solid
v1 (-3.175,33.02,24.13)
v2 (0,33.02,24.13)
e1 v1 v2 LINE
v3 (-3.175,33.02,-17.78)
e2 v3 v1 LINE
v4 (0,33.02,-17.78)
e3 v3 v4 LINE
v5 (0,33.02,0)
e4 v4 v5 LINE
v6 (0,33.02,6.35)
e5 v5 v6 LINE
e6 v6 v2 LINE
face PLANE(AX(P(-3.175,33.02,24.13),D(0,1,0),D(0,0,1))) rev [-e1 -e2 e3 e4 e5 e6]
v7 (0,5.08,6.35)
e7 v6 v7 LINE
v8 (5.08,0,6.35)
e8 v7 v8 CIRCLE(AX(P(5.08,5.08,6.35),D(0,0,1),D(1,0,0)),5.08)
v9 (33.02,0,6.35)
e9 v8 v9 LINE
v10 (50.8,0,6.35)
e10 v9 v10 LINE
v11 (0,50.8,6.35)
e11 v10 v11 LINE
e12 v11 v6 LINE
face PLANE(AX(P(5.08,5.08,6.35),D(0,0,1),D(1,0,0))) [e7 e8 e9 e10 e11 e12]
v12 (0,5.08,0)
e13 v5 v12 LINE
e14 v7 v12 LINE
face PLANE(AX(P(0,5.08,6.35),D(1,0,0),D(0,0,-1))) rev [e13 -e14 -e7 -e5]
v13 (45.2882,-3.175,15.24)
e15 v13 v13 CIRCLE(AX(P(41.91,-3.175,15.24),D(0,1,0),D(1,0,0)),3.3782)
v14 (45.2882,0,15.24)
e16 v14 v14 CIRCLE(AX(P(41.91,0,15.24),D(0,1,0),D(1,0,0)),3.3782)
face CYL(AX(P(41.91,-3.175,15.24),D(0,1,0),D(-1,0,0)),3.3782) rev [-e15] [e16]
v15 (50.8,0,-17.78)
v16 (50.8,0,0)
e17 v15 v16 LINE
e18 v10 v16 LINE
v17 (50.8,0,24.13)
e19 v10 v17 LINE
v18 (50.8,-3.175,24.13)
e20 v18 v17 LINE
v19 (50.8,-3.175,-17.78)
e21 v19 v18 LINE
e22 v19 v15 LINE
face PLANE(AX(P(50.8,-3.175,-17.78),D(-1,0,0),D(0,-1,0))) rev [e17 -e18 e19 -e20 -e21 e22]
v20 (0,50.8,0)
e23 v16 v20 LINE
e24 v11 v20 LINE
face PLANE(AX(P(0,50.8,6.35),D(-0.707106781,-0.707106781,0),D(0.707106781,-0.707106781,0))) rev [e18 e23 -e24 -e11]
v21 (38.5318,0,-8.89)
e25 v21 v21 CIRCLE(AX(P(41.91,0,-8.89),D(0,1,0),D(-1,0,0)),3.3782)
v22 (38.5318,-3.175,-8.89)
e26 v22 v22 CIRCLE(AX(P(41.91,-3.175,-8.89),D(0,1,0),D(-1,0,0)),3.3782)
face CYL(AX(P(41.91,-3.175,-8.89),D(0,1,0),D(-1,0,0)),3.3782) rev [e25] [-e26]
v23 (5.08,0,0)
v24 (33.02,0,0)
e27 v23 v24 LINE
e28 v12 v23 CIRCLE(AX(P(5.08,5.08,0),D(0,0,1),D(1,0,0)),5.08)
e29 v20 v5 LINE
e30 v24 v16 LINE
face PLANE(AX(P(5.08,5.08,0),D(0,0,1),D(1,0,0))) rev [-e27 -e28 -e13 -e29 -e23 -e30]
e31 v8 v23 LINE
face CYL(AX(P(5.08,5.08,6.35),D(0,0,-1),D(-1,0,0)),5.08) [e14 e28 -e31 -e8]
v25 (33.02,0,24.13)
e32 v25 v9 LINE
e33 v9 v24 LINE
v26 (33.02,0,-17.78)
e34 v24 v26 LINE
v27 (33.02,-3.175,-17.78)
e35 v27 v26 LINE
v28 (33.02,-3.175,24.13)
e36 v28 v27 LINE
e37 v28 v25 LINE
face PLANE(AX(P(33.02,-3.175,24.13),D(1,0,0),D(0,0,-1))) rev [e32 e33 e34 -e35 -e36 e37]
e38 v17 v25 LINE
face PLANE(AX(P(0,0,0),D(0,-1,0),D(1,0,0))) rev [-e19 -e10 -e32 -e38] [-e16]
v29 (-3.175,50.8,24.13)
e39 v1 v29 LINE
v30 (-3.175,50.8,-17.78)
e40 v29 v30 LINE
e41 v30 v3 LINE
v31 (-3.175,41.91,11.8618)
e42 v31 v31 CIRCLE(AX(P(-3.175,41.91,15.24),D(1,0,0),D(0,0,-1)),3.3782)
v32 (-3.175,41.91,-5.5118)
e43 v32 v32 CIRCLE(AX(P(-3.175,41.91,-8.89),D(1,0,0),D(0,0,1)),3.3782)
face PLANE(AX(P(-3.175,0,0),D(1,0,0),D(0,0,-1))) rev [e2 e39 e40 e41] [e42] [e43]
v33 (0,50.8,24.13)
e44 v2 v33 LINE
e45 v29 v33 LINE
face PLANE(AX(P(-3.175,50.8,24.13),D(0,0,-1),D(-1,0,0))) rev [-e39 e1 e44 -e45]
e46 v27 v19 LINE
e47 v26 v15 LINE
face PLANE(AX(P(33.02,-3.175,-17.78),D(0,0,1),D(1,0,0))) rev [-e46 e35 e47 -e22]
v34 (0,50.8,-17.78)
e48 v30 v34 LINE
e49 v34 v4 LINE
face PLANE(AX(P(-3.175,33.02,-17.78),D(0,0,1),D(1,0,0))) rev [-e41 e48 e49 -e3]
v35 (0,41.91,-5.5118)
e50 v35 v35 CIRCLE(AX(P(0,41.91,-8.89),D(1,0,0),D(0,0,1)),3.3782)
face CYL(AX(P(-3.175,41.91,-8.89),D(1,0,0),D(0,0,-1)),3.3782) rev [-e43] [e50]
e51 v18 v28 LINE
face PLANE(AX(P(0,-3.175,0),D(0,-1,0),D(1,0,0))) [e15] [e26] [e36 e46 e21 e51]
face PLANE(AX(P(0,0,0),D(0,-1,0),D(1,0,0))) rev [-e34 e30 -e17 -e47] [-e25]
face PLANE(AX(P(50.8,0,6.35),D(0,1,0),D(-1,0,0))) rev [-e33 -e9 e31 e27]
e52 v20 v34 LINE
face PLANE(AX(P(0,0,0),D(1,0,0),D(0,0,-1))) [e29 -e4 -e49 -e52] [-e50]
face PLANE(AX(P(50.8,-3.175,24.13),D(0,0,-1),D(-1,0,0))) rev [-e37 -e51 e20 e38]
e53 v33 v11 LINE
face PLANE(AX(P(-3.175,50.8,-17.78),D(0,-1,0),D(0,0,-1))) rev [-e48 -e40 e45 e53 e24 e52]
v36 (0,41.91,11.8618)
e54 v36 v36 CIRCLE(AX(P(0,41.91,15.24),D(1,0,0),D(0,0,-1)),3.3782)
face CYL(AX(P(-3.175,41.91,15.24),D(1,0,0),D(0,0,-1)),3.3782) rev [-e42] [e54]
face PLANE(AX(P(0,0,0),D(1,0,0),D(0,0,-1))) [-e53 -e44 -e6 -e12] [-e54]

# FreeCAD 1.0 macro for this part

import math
import FreeCAD as App
import Part
import Sketcher
from FreeCAD import Vector
Q = App.Units.Quantity


def add_polygon(sketch, points):
    """Adds a closed chain of lines whose ends are joined by coincident constraints."""
    first, n = sketch.GeometryCount, len(points)
    for a, b in zip(points, points[1:] + points[:1]):
        sketch.addGeometry(Part.LineSegment(App.Vector(*a, 0), App.Vector(*b, 0)), False)
    for i in range(n):
        sketch.addConstraint(Sketcher.Constraint("Coincident", first + i, 2, first + (i + 1) % n, 1))

doc = App.newDocument("Part")
params = doc.addObject("Spreadsheet::Sheet", "Params")
for row, (alias, value) in enumerate([
    ("sketch1_radius", "0.2 in"),
    ("sketch1_width", "1.8 in"),
    ("pad1_length", "0.25 in"),
    ("sketch2_width", "0.7 in"),
    ("sketch2_height", "1.65 in"),
    ("pad2_length", "0.125 in"),
    ("sketch3_width", "0.7 in"),
    ("sketch3_height", "1.65 in"),
    ("pad3_length", "0.125 in"),
    ("sketch4_diameter", "0.266 in"),
    ("pocket1_length", "0.125 in"),
    ("sketch5_diameter", "0.266 in"),
    ("pocket2_length", "0.125 in"),
], start=1):
    params.set(f"A{row}", alias)
    params.set(f"B{row}", "=" + value)
    params.setAlias(f"B{row}", alias)

body = doc.addObject("PartDesign::Body", "Body")

# Sketch on XY plane
sketch1 = body.newObject("Sketcher::SketchObject", "Sketch")
sketch1.AttachmentSupport = (doc.getObject("XY_Plane"), [""])
sketch1.MapMode = "FlatFace"
sketch1.addGeometry([
    Part.LineSegment(Vector(0, 51, 0), Vector(0, 5, 0)),
    Part.ArcOfCircle(Part.Circle(Vector(5, 5, 0), Vector(0, 0, 1), 5), math.radians(-180), math.radians(-90)),
    Part.LineSegment(Vector(5, 0, 0), Vector(51, 0, 0)),
    Part.LineSegment(Vector(51, 0, 0), Vector(0, 51, 0)),
], False)
sketch1.addConstraint([
    Sketcher.Constraint("Tangent", 0, 2, 1, 1),
    Sketcher.Constraint("Tangent", 1, 2, 2, 1),
    Sketcher.Constraint("Coincident", 2, 2, 3, 1),
    Sketcher.Constraint("Coincident", 3, 2, 0, 1),
    Sketcher.Constraint("Vertical", 0),
    Sketcher.Constraint("Horizontal", 2),
    Sketcher.Constraint("PointOnObject", 0, 2, -2),
    Sketcher.Constraint("PointOnObject", 1, 2, -1),
    Sketcher.Constraint("Equal", 2, 0),
    Sketcher.Constraint("Radius", 1, Q("0.2 in")),
    Sketcher.Constraint("DistanceX", 2, 1, 2, 2, Q("1.8 in")),
])
sketch1.setExpression("Constraints[9]", "Params.sketch1_radius")
sketch1.setExpression("Constraints[10]", "Params.sketch1_width")
pad1 = body.newObject("PartDesign::Pad", "Pad")
pad1.Profile = sketch1
pad1.setExpression("Length", "Params.pad1_length")

# Sketch on YZ plane
sketch2 = body.newObject("Sketcher::SketchObject", "Sketch001")
sketch2.AttachmentSupport = (doc.getObject("YZ_Plane"), [""])
sketch2.MapMode = "FlatFace"
add_polygon(sketch2, [(51, -18), (33, -18), (33, 24), (51, 24)])  # lines 0-3
sketch2.addConstraint([
    Sketcher.Constraint("Horizontal", 0),
    Sketcher.Constraint("Vertical", 1),
    Sketcher.Constraint("Horizontal", 2),
    Sketcher.Constraint("Vertical", 3),
    Sketcher.Constraint("DistanceX", 0, 2, 0, 1, Q("0.7 in")),
    Sketcher.Constraint("DistanceX", -1, 1, 2, 2, Q("2 in")),
    Sketcher.Constraint("DistanceY", 1, 1, 1, 2, Q("1.65 in")),
    Sketcher.Constraint("DistanceY", 0, 2, -1, 1, Q("0.7 in")),
])
sketch2.setExpression("Constraints[8]", "Params.sketch2_width")
sketch2.setExpression("Constraints[10]", "Params.sketch2_height")
pad2 = body.newObject("PartDesign::Pad", "Pad001")
pad2.Profile = sketch2
pad2.setExpression("Length", "Params.pad2_length")
pad2.Reversed = True

# Sketch on XZ plane
sketch3 = body.newObject("Sketcher::SketchObject", "Sketch002")
sketch3.AttachmentSupport = (doc.getObject("XZ_Plane"), [""])
sketch3.MapMode = "FlatFace"
add_polygon(sketch3, [(33, 24), (33, -18), (51, -18), (51, 24)])  # lines 0-3
sketch3.addConstraint([
    Sketcher.Constraint("Vertical", 0),
    Sketcher.Constraint("Horizontal", 1),
    Sketcher.Constraint("Vertical", 2),
    Sketcher.Constraint("Horizontal", 3),
    Sketcher.Constraint("DistanceX", 1, 1, 1, 2, Q("0.7 in")),
    Sketcher.Constraint("DistanceX", -1, 1, 1, 2, Q("2 in")),
    Sketcher.Constraint("DistanceY", 0, 2, 0, 1, Q("1.65 in")),
    Sketcher.Constraint("DistanceY", 0, 2, -1, 1, Q("0.7 in")),
])
sketch3.setExpression("Constraints[8]", "Params.sketch3_width")
sketch3.setExpression("Constraints[10]", "Params.sketch3_height")
pad3 = body.newObject("PartDesign::Pad", "Pad002")
pad3.Profile = sketch3
pad3.setExpression("Length", "Params.pad3_length")

# Sketch on XZ plane
sketch4 = body.newObject("Sketcher::SketchObject", "Sketch003")
sketch4.AttachmentSupport = (doc.getObject("XZ_Plane"), [""])
sketch4.MapMode = "FlatFace"
sketch4.addGeometry([
    Part.Circle(Vector(41.9, -8.9, 0), Vector(0, 0, 1), 3.4),
    Part.Circle(Vector(41.9, 15.2, 0), Vector(0, 0, 1), 3.4),
], False)
sketch4.addConstraint([
    Sketcher.Constraint("Equal", 0, 1),
    Sketcher.Constraint("Vertical", 0, 3, 1, 3),
    Sketcher.Constraint("Diameter", 0, Q("0.266 in")),
    Sketcher.Constraint("DistanceY", -1, 1, 1, 3, Q("0.6 in")),
    Sketcher.Constraint("DistanceX", -1, 1, 0, 3, Q("1.65 in")),
    Sketcher.Constraint("DistanceY", 0, 3, -1, 1, Q("0.35 in")),
])
sketch4.setExpression("Constraints[2]", "Params.sketch4_diameter")
pocket1 = body.newObject("PartDesign::Pocket", "Pocket")
pocket1.Profile = sketch4
pocket1.setExpression("Length", "Params.pocket1_length")
pocket1.Reversed = True

# Sketch on YZ plane
sketch5 = body.newObject("Sketcher::SketchObject", "Sketch004")
sketch5.AttachmentSupport = (doc.getObject("YZ_Plane"), [""])
sketch5.MapMode = "FlatFace"
sketch5.addGeometry([
    Part.Circle(Vector(41.9, 15.2, 0), Vector(0, 0, 1), 3.4),
    Part.Circle(Vector(41.9, -8.9, 0), Vector(0, 0, 1), 3.4),
], False)
sketch5.addConstraint([
    Sketcher.Constraint("Equal", 0, 1),
    Sketcher.Constraint("Vertical", 0, 3, 1, 3),
    Sketcher.Constraint("Diameter", 0, Q("0.266 in")),
    Sketcher.Constraint("DistanceY", -1, 1, 0, 3, Q("0.6 in")),
    Sketcher.Constraint("DistanceX", -1, 1, 0, 3, Q("1.65 in")),
    Sketcher.Constraint("DistanceY", 1, 3, -1, 1, Q("0.35 in")),
])
sketch5.setExpression("Constraints[2]", "Params.sketch5_diameter")
pocket2 = body.newObject("PartDesign::Pocket", "Pocket001")
pocket2.Profile = sketch5
pocket2.setExpression("Length", "Params.pocket2_length")

doc.recompute()
